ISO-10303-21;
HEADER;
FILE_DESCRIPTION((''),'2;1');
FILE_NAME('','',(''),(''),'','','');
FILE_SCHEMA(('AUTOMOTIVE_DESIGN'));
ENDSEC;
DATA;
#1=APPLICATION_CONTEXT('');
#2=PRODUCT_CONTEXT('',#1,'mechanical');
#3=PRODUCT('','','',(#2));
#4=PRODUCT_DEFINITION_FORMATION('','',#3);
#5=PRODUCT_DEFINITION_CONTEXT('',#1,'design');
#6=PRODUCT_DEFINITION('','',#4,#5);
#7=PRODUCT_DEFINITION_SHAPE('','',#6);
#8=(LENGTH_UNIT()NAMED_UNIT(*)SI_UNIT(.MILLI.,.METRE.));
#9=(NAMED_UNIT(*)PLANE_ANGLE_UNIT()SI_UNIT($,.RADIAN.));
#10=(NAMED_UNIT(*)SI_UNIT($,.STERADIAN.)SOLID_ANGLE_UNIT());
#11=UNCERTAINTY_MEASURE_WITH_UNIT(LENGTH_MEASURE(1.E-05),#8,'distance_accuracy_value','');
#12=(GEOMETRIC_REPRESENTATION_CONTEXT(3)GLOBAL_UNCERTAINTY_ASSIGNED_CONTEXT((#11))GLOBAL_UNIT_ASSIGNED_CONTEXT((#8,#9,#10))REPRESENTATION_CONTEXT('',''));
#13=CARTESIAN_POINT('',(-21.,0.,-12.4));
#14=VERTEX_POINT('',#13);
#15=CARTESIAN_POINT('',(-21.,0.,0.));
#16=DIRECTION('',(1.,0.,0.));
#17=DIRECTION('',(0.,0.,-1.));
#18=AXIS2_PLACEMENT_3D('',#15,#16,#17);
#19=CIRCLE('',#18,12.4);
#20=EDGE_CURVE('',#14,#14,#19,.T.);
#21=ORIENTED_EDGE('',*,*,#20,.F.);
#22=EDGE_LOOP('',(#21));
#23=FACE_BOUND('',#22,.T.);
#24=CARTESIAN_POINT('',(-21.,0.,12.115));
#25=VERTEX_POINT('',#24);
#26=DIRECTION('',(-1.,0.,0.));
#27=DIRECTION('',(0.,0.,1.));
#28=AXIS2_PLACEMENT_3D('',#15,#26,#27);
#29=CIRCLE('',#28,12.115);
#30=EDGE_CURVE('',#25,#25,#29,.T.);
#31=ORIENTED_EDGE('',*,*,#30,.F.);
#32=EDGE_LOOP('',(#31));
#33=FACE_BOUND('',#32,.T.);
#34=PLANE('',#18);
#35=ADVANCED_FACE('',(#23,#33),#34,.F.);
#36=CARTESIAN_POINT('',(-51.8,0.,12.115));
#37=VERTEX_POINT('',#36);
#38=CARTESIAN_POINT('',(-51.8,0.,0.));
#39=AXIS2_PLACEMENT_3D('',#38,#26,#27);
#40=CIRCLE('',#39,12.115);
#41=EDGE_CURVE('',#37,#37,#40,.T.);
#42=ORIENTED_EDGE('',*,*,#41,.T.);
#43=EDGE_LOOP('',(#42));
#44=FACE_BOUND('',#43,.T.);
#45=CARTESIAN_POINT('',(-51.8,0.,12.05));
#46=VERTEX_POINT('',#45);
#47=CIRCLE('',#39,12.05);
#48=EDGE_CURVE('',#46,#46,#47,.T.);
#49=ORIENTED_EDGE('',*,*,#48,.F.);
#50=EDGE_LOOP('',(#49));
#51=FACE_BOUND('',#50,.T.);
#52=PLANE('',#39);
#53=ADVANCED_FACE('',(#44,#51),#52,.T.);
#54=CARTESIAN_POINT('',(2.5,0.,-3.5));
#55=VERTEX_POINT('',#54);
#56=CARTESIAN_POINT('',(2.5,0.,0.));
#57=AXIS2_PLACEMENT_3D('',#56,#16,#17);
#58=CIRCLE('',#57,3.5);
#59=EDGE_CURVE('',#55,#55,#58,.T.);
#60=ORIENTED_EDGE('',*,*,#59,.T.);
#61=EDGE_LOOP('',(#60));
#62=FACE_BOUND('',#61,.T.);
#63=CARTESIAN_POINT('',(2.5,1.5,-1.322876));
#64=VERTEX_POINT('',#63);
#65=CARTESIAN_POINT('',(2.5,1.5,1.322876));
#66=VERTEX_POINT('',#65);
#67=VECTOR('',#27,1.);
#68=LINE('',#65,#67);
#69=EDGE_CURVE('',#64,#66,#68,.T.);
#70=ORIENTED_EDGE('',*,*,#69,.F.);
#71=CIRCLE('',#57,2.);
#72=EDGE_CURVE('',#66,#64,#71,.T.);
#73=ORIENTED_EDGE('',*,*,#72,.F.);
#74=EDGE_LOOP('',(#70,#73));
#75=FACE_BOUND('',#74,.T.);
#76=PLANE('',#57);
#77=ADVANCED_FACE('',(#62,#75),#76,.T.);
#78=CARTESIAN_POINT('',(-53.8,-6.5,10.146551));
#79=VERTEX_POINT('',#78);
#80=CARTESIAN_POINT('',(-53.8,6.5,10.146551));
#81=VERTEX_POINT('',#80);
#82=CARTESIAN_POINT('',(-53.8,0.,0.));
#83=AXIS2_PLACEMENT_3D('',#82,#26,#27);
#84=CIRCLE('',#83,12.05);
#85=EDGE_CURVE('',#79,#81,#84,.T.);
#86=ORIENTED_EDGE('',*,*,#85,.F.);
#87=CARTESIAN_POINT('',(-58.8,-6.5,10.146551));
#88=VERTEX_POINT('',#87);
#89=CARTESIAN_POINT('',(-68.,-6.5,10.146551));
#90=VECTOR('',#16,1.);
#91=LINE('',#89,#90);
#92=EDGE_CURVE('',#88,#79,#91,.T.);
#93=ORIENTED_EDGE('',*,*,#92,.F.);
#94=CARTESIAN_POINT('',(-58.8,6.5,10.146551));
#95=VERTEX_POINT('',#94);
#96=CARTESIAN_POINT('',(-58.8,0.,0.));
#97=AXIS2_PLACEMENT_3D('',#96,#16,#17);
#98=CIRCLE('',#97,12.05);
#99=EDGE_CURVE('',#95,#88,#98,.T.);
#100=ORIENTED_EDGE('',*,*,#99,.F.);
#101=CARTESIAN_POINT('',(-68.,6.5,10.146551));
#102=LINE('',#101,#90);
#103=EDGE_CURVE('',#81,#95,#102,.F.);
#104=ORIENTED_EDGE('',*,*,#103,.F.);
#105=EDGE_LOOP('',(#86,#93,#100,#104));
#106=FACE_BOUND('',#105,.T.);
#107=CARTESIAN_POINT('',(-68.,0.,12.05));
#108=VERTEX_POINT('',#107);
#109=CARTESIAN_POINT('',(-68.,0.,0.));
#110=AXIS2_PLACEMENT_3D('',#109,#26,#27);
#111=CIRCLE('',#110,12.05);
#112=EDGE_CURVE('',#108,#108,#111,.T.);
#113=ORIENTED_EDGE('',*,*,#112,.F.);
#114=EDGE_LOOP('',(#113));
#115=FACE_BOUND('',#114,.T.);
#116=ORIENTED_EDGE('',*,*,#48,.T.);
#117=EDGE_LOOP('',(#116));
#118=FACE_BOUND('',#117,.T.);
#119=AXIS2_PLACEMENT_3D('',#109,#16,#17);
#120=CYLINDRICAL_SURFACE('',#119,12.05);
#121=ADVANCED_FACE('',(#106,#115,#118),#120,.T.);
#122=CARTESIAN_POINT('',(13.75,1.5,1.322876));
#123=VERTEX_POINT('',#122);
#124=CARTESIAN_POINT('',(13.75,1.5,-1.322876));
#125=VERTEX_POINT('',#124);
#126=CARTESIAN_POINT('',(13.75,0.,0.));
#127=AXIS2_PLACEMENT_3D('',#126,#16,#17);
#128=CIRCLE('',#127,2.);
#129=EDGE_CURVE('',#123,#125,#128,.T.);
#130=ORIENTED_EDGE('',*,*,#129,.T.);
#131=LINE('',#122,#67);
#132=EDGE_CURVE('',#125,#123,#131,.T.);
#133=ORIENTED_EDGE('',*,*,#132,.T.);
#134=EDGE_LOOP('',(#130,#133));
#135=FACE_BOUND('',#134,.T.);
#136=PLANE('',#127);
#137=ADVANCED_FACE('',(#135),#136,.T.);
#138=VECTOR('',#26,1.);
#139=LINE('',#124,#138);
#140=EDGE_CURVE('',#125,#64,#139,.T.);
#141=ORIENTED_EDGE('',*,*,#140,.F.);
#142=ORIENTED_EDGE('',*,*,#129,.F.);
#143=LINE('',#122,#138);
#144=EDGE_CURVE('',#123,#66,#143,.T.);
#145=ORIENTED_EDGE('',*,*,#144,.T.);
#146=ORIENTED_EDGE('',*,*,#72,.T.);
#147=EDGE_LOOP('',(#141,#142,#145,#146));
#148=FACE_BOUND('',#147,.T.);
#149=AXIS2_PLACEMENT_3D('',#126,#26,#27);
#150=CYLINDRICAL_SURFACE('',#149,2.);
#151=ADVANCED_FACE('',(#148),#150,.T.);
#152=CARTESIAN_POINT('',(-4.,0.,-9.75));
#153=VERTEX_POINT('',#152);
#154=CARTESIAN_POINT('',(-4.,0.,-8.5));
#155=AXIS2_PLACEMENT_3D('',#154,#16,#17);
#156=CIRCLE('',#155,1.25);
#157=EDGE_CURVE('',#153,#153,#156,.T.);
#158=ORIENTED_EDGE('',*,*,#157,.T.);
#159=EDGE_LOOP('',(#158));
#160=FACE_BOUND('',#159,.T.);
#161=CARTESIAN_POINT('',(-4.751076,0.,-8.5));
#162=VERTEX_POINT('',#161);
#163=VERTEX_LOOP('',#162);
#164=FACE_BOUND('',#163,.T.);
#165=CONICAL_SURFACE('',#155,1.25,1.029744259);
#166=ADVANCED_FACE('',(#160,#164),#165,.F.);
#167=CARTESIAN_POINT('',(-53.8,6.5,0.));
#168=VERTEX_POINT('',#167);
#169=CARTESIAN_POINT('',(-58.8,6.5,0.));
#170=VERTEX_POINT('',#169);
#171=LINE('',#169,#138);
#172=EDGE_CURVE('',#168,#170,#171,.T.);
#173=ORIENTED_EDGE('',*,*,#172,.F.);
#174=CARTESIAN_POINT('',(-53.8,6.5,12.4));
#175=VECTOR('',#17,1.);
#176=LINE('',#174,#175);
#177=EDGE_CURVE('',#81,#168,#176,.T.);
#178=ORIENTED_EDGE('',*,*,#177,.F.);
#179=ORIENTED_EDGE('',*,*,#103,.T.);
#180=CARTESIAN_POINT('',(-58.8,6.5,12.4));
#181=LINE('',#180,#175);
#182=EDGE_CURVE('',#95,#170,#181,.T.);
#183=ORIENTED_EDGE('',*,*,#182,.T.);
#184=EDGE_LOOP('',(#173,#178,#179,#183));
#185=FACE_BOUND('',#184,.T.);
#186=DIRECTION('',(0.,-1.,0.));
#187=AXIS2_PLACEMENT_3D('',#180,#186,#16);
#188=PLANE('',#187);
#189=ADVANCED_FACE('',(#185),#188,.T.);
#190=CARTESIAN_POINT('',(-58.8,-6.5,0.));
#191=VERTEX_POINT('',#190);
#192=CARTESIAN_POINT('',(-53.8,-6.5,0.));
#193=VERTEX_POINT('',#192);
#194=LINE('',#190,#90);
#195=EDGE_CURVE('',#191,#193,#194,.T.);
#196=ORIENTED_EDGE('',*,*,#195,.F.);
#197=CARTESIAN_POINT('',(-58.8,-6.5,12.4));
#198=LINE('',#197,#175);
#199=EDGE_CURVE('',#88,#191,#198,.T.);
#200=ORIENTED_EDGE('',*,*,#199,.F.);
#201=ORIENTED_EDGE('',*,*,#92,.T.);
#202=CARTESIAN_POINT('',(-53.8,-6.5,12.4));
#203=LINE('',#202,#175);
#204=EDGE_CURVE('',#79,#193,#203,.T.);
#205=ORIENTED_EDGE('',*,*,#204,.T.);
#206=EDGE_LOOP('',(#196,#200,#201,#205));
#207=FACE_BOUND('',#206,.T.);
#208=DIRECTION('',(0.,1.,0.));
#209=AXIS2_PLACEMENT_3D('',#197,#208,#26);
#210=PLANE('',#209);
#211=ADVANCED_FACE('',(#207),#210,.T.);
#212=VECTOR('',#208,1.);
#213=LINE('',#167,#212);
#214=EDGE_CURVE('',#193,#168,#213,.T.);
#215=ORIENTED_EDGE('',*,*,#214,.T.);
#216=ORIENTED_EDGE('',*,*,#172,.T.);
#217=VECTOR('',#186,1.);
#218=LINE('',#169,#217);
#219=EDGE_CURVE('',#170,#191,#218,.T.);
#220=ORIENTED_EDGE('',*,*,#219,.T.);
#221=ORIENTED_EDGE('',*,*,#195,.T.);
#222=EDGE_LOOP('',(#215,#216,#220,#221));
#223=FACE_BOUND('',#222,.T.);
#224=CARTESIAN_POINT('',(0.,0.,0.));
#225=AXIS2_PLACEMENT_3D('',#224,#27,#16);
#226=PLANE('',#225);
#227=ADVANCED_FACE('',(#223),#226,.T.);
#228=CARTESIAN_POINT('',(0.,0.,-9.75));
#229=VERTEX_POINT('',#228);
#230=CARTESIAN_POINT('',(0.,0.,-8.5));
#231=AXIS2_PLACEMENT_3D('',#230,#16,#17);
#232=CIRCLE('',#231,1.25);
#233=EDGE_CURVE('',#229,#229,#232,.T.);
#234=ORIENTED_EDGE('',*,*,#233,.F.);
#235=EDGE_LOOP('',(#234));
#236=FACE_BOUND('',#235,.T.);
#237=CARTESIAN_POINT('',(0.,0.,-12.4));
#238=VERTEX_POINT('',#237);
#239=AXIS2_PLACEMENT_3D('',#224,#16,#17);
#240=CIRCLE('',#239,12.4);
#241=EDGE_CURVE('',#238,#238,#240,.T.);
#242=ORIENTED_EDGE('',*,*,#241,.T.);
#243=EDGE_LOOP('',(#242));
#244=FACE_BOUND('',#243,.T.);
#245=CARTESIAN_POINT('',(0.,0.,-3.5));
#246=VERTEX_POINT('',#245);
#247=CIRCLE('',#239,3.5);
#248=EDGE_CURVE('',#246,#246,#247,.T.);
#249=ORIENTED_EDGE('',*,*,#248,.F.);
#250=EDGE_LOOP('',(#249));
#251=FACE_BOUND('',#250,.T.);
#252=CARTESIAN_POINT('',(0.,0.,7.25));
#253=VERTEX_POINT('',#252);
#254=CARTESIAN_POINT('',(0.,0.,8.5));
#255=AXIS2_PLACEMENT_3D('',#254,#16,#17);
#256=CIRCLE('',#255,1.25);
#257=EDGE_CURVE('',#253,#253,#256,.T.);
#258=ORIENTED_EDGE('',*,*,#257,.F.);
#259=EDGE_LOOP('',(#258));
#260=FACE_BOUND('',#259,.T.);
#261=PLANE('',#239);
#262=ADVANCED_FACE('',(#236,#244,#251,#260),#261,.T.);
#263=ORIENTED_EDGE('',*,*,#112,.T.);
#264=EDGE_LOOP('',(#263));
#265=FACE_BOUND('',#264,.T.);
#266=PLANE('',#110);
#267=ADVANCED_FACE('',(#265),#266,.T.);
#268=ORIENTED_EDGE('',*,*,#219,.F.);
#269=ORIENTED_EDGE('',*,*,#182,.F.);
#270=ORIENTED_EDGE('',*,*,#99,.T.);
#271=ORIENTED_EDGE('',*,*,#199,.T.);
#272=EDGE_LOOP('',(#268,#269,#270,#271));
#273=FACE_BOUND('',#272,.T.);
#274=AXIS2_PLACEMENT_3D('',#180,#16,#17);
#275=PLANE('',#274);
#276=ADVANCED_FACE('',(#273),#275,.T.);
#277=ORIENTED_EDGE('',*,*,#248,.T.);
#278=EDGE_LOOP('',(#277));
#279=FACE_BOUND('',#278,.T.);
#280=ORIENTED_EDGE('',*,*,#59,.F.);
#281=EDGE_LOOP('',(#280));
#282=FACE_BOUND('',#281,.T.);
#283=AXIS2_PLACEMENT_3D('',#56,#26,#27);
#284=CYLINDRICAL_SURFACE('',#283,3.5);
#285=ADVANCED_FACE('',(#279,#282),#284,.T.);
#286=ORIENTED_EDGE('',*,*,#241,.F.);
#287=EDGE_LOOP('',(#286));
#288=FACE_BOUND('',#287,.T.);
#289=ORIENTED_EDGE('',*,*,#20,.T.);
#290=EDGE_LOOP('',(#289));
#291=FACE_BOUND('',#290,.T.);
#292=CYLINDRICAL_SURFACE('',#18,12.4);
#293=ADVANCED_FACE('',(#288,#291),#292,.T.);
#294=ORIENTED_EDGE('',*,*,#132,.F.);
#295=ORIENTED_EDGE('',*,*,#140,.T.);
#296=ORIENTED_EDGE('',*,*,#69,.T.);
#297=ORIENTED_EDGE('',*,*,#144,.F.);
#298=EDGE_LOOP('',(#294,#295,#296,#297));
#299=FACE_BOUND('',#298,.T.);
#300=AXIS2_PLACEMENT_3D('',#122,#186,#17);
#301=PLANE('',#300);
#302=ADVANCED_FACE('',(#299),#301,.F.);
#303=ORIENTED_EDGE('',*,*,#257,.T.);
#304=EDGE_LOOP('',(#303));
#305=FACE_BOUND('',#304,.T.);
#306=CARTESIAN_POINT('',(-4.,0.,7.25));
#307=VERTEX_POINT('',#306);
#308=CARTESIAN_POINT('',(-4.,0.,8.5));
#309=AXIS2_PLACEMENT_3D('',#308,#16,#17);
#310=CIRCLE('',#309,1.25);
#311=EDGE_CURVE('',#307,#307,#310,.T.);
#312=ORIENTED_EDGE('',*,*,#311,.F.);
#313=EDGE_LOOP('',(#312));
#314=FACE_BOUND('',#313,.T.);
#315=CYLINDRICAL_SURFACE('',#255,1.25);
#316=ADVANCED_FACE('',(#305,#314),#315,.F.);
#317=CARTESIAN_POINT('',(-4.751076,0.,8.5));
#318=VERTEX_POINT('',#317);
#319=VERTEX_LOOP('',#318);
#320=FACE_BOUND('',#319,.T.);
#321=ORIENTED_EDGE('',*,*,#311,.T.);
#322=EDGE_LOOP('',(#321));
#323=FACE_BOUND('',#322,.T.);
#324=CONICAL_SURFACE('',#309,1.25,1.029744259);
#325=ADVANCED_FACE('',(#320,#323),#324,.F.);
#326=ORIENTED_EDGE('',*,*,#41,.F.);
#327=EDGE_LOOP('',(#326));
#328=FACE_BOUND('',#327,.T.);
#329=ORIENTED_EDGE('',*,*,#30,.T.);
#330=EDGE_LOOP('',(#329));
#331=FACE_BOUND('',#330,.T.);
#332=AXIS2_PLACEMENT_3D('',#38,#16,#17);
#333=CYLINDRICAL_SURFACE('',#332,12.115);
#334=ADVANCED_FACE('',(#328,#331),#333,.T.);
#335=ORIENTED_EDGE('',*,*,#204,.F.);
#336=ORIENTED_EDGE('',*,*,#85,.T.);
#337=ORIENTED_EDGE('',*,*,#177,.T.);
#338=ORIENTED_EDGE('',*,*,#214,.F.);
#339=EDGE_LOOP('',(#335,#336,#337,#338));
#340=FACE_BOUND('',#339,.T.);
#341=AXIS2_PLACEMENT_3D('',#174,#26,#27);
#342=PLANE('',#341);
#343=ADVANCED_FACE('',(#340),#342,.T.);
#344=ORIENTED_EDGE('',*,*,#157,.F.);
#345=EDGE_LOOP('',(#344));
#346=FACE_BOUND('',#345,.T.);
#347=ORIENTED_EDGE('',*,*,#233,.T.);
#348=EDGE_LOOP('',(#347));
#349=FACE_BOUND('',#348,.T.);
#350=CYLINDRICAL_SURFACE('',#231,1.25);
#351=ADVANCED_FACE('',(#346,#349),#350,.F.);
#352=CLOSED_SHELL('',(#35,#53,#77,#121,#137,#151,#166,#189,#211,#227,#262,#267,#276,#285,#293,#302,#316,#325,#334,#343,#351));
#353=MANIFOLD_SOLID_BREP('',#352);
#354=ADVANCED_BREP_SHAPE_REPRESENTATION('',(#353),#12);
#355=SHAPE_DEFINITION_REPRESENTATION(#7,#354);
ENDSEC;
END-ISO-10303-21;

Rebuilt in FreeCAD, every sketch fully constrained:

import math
import FreeCAD as App
import Part
import Sketcher
Q = App.Units.Quantity

doc = App.newDocument("Part")
body = doc.addObject("PartDesign::Body", "Body")

# Sketch on YZ plane
sketch1 = body.newObject("Sketcher::SketchObject", "Sketch")
sketch1.AttachmentSupport = (doc.getObject("YZ_Plane"), [""])
sketch1.MapMode = "FlatFace"
sketch1.addGeometry(Part.Circle(App.Vector(0, 0, 0), App.Vector(0, 0, 1), 12), False)
sketch1.addConstraint([
    Sketcher.Constraint("Coincident", 0, 3, -1, 1),
    Sketcher.Constraint("Diameter", 0, Q("24.8 mm")),
])
pad1 = body.newObject("PartDesign::Pad", "Pad")
pad1.Profile = sketch1
pad1.Length = 21
pad1.Reversed = True

# Sketch on YZ plane
sketch2 = body.newObject("Sketcher::SketchObject", "Sketch001")
sketch2.AttachmentSupport = (doc.getObject("YZ_Plane"), [""])
sketch2.MapMode = "FlatFace"
sketch2.AttachmentOffset = App.Placement(App.Vector(0, 0, -21), App.Rotation())
sketch2.addGeometry(Part.Circle(App.Vector(0, 0, 0), App.Vector(0, 0, 1), 12), False)
sketch2.addConstraint([
    Sketcher.Constraint("Coincident", 0, 3, -1, 1),
    Sketcher.Constraint("Diameter", 0, Q("24.23 mm")),
])
pad2 = body.newObject("PartDesign::Pad", "Pad001")
pad2.Profile = sketch2
pad2.Length = 30.8
pad2.Reversed = True

# Sketch on YZ plane
sketch3 = body.newObject("Sketcher::SketchObject", "Sketch002")
sketch3.AttachmentSupport = (doc.getObject("YZ_Plane"), [""])
sketch3.MapMode = "FlatFace"
sketch3.AttachmentOffset = App.Placement(App.Vector(0, 0, -51.8), App.Rotation())
sketch3.addGeometry(Part.Circle(App.Vector(0, 0, 0), App.Vector(0, 0, 1), 12), False)
sketch3.addConstraint([
    Sketcher.Constraint("Coincident", 0, 3, -1, 1),
    Sketcher.Constraint("Diameter", 0, Q("24.1 mm")),
])
pad3 = body.newObject("PartDesign::Pad", "Pad002")
pad3.Profile = sketch3
pad3.Length = 16.2
pad3.Reversed = True

# Sketch on YZ plane
sketch4 = body.newObject("Sketcher::SketchObject", "Sketch003")
sketch4.AttachmentSupport = (doc.getObject("YZ_Plane"), [""])
sketch4.MapMode = "FlatFace"
sketch4.addGeometry(Part.Circle(App.Vector(0, 0, 0), App.Vector(0, 0, 1), 3.5), False)
sketch4.addConstraint([
    Sketcher.Constraint("Coincident", 0, 3, -1, 1),
    Sketcher.Constraint("Diameter", 0, Q("7 mm")),
])
pad4 = body.newObject("PartDesign::Pad", "Pad003")
pad4.Profile = sketch4
pad4.Length = 2.5

# Sketch on YZ plane
sketch5 = body.newObject("Sketcher::SketchObject", "Sketch004")
sketch5.AttachmentSupport = (doc.getObject("YZ_Plane"), [""])
sketch5.MapMode = "FlatFace"
sketch5.AttachmentOffset = App.Placement(App.Vector(0, 0, 2.5), App.Rotation())
sketch5.addGeometry([
    Part.LineSegment(App.Vector(1.5, -1.3, 0), App.Vector(1.5, 1.3, 0)),
    Part.ArcOfCircle(Part.Circle(App.Vector(0, 0, 0), App.Vector(0, 0, 1), 2), math.radians(41), math.radians(319)),
], False)
sketch5.addConstraint([
    Sketcher.Constraint("Coincident", 0, 1, 1, 2),
    Sketcher.Constraint("Coincident", 1, 1, 0, 2),
    Sketcher.Constraint("Vertical", 0),
    Sketcher.Constraint("Coincident", 1, 3, -1, 1),
    Sketcher.Constraint("Radius", 1, Q("2 mm")),
    Sketcher.Constraint("DistanceX", -1, 1, 0, 1, Q("1.5 mm")),
])
pad5 = body.newObject("PartDesign::Pad", "Pad004")
pad5.Profile = sketch5
pad5.Length = 11.25

# Sketch on YZ plane
sketch6 = body.newObject("Sketcher::SketchObject", "Sketch005")
sketch6.AttachmentSupport = (doc.getObject("YZ_Plane"), [""])
sketch6.MapMode = "FlatFace"
sketch6.addGeometry([
    Part.Circle(App.Vector(0, 8.5, 0), App.Vector(0, 0, 1), 1.2),
    Part.Circle(App.Vector(0, -8.5, 0), App.Vector(0, 0, 1), 1.2),
], False)
sketch6.addConstraint([
    Sketcher.Constraint("Equal", 0, 1),
    Sketcher.Constraint("Symmetric", 0, 3, 1, 3, -1, 1),
    Sketcher.Constraint("PointOnObject", 0, 3, -2),
    Sketcher.Constraint("Diameter", 0, Q("2.5 mm")),
    Sketcher.Constraint("DistanceY", 1, 3, 0, 3, Q("17 mm")),
])
doc.recompute()
hole = body.newObject("PartDesign::Hole", "Hole")
hole.Profile = sketch6
hole.ThreadType = "None"
hole.Diameter = 2.5
hole.DepthType = "Dimension"
hole.Depth = 4
hole.DrillPoint = "Angled"
hole.DrillPointAngle = 118

# Sketch on XY plane
sketch7 = body.newObject("Sketcher::SketchObject", "Sketch006")
sketch7.AttachmentSupport = (doc.getObject("XY_Plane"), [""])
sketch7.MapMode = "FlatFace"
sketch7.addGeometry([
    Part.LineSegment(App.Vector(-59, 6, 0), App.Vector(-59, -6, 0)),
    Part.LineSegment(App.Vector(-59, -6, 0), App.Vector(-54, -6, 0)),
    Part.LineSegment(App.Vector(-54, -6, 0), App.Vector(-54, 6, 0)),
    Part.LineSegment(App.Vector(-54, 6, 0), App.Vector(-59, 6, 0)),
], False)
sketch7.addConstraint([
    Sketcher.Constraint("Coincident", 0, 2, 1, 1),
    Sketcher.Constraint("Coincident", 1, 2, 2, 1),
    Sketcher.Constraint("Coincident", 2, 2, 3, 1),
    Sketcher.Constraint("Coincident", 3, 2, 0, 1),
    Sketcher.Constraint("Vertical", 0),
    Sketcher.Constraint("Horizontal", 1),
    Sketcher.Constraint("Vertical", 2),
    Sketcher.Constraint("Horizontal", 3),
    Sketcher.Constraint("DistanceX", 1, 1, 1, 2, Q("5 mm")),
    Sketcher.Constraint("DistanceY", 0, 2, 0, 1, Q("13 mm")),
    Sketcher.Constraint("DistanceX", 0, 2, -1, 1, Q("58.8 mm")),
    Sketcher.Constraint("DistanceY", 0, 2, -1, 1, Q("6.5 mm")),
])
pocket1 = body.newObject("PartDesign::Pocket", "Pocket")
pocket1.Profile = sketch7
pocket1.Type = "ThroughAll"
pocket1.Reversed = True

doc.recompute()
